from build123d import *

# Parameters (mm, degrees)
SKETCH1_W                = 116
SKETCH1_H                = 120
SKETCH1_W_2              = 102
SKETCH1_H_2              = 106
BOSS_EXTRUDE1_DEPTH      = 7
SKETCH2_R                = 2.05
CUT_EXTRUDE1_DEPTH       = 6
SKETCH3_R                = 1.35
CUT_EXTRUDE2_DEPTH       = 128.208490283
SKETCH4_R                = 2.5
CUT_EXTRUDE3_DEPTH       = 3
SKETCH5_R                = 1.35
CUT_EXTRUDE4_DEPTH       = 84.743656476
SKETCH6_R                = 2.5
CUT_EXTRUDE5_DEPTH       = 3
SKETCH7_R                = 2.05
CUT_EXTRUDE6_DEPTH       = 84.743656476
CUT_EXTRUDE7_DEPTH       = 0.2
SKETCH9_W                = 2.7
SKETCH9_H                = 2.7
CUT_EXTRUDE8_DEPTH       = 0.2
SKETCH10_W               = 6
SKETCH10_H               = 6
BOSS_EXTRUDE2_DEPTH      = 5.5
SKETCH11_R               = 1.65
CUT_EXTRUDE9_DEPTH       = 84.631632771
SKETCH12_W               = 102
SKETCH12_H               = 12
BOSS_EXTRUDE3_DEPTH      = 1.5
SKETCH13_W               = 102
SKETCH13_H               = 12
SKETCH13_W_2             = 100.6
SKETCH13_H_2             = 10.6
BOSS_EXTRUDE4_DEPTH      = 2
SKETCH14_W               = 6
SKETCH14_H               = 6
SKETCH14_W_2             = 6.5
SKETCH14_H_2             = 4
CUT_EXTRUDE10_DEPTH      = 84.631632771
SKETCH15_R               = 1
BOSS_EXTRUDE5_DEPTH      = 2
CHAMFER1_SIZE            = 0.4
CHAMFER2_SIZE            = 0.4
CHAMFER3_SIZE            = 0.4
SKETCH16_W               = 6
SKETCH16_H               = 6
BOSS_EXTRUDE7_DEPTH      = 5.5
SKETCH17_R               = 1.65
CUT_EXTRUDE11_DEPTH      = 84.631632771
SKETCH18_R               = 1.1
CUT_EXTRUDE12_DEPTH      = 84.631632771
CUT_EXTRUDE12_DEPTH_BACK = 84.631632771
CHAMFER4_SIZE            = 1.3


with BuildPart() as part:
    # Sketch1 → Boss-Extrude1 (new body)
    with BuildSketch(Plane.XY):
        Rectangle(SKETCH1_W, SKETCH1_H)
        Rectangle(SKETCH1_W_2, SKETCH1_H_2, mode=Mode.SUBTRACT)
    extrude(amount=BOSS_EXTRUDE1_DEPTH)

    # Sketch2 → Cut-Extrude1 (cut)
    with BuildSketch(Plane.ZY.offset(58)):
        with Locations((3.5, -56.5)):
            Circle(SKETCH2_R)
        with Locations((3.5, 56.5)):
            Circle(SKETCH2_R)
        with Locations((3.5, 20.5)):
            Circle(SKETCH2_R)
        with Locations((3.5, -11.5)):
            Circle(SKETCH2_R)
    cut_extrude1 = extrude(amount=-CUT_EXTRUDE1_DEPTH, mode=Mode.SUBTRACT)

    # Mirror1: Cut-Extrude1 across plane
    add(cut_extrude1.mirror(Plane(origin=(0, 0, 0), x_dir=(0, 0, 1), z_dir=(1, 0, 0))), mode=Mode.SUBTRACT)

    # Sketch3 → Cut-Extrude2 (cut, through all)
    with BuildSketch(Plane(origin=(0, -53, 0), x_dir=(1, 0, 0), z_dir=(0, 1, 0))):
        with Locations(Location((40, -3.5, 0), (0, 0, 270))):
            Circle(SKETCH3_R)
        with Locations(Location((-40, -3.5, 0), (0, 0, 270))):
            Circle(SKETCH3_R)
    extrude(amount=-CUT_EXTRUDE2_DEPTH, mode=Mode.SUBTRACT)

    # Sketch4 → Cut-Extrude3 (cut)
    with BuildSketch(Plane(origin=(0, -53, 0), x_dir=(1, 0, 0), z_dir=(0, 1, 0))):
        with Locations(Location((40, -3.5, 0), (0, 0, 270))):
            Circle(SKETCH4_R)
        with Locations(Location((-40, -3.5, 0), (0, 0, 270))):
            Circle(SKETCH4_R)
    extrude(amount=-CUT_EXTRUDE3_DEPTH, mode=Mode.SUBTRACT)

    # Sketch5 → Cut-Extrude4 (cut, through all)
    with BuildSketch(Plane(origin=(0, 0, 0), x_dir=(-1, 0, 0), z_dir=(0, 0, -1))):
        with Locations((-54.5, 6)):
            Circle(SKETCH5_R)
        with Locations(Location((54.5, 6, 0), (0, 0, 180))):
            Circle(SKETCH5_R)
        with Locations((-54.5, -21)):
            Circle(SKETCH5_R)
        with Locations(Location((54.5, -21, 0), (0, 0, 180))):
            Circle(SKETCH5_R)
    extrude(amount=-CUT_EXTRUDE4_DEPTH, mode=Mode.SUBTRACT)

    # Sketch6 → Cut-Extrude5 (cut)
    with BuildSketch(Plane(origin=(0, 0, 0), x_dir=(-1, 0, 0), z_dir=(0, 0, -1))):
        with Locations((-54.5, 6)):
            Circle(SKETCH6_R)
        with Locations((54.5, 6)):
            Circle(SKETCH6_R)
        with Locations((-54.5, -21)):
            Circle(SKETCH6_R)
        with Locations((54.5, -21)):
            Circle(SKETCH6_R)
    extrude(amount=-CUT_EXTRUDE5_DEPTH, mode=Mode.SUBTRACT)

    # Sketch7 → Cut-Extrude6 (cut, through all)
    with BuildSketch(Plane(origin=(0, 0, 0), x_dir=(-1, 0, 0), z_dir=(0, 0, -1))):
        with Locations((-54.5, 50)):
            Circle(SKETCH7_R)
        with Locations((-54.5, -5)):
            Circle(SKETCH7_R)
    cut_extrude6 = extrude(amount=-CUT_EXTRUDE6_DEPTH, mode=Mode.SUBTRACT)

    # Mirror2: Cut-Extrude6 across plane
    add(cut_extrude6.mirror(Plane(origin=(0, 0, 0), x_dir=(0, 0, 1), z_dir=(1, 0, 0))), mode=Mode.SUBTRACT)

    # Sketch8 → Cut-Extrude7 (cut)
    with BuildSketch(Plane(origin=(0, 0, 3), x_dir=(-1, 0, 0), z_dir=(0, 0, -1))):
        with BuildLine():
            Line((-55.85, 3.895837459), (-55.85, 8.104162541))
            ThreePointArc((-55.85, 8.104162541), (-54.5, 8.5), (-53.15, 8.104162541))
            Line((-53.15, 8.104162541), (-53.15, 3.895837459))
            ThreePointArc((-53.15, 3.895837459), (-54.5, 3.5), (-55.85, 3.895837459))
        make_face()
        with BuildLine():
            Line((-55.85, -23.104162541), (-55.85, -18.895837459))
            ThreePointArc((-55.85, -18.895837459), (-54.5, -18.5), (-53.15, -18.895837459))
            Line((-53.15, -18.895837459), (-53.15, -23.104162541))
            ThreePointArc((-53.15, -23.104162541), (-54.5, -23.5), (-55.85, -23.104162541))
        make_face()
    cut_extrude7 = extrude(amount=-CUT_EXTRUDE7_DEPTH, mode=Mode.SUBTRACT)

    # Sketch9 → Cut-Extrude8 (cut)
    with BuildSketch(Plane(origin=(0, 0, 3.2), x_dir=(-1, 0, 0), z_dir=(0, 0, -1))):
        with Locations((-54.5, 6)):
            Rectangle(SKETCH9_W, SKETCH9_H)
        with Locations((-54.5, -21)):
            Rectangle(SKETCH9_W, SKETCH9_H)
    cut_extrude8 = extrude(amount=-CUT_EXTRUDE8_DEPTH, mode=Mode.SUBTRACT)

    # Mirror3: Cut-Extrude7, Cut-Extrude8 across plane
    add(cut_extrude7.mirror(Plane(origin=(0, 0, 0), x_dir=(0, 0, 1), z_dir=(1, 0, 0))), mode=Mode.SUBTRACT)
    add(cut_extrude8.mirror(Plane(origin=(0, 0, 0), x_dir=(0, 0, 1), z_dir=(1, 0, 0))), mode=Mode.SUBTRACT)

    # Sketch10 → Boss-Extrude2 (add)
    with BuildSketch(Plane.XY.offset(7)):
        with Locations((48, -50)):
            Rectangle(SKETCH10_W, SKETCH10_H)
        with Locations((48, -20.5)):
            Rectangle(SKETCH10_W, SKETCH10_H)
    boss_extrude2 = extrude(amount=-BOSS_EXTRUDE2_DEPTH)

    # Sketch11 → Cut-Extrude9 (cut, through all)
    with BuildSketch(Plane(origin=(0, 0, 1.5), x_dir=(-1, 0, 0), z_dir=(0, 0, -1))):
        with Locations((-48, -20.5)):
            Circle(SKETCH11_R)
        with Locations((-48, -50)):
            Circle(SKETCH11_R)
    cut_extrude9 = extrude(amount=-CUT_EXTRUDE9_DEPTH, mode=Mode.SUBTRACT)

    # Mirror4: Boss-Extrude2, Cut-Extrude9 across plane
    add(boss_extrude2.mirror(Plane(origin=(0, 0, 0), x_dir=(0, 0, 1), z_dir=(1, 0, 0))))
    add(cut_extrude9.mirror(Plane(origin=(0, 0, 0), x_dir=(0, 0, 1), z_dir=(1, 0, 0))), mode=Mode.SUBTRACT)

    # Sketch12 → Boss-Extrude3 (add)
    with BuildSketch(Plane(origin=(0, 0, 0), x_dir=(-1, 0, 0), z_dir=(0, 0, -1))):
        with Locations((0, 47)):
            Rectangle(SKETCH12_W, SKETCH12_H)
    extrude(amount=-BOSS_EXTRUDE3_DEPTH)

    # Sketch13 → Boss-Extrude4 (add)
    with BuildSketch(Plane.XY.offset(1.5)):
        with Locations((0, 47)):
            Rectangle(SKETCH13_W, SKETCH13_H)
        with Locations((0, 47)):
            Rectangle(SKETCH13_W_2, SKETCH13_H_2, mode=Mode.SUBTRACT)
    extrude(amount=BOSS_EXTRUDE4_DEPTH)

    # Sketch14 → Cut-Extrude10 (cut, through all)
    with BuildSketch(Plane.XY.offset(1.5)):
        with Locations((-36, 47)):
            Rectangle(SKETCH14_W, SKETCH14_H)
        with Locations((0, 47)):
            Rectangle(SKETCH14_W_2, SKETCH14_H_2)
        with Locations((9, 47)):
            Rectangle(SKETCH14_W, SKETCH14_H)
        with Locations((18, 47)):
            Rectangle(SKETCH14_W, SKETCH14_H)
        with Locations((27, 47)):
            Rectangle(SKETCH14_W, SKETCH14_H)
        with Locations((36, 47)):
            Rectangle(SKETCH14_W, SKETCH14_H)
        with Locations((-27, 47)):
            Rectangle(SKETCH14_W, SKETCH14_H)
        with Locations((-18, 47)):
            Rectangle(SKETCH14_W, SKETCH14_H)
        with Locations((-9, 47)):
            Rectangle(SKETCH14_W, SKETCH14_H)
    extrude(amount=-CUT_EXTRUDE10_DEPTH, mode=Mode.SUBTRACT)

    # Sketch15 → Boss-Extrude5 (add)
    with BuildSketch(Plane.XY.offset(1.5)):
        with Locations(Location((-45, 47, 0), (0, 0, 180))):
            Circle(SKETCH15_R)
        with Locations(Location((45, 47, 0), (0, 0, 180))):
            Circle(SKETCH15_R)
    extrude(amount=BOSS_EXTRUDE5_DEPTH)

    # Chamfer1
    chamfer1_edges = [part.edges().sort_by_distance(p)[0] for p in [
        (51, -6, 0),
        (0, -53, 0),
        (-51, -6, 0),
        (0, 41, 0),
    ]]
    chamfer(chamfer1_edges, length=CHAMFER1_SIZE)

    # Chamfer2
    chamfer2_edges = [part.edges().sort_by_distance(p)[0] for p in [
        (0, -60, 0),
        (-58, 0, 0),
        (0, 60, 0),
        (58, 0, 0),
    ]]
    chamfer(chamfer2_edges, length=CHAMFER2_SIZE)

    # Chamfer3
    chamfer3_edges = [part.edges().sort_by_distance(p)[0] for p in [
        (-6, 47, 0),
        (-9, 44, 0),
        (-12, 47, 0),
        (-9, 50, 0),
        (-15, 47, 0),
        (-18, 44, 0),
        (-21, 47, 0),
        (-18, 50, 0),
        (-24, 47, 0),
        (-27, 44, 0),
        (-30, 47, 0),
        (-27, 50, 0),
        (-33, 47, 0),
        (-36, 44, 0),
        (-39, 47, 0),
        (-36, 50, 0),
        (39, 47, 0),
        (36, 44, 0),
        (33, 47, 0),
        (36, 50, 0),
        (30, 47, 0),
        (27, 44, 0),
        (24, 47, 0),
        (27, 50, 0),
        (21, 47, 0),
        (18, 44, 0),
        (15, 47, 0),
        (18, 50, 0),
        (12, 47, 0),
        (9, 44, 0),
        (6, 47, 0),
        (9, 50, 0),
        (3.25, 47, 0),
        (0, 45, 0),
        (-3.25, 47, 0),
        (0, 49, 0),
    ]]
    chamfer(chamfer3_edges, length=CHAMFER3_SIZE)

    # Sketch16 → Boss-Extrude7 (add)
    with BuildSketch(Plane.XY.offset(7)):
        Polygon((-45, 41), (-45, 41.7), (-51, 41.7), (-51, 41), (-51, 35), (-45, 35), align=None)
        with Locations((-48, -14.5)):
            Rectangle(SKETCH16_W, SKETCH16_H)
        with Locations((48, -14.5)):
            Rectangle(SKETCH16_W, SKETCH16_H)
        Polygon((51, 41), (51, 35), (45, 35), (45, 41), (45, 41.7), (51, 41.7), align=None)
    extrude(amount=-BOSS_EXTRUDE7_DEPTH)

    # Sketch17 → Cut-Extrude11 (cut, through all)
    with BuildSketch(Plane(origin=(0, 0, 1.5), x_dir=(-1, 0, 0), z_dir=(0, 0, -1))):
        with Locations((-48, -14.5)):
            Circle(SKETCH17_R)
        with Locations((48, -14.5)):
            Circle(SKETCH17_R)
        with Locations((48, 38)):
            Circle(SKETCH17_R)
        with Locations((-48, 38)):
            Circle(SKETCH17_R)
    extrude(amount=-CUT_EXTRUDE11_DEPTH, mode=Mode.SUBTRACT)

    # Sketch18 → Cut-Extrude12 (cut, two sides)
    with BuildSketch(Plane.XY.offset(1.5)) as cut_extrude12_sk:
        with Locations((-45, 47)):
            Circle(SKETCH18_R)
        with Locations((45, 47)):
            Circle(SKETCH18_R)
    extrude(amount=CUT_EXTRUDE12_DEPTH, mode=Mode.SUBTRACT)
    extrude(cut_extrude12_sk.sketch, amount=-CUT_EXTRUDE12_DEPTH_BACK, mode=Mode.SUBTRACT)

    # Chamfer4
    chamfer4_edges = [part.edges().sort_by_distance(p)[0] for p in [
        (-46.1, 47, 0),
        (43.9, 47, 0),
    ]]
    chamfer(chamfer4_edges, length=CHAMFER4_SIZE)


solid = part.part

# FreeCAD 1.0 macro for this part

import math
import FreeCAD as App
import Part
import Sketcher

V = App.Vector
Q = App.Units.Quantity


def edges_at(feature, points):
    """Names of the edges that pass closest to the given points."""
    edges = feature.Shape.Edges
    near = lambda p: min(range(len(edges)), key=lambda i: edges[i].distToShape(Part.Vertex(*p))[0])
    return sorted({f"Edge{near(p) + 1}" for p in points})


def add_polygon(sketch, points):
    """Adds a closed chain of lines whose ends are joined by coincident constraints."""
    first, n = sketch.GeometryCount, len(points)
    for a, b in zip(points, points[1:] + points[:1]):
        sketch.addGeometry(Part.LineSegment(App.Vector(*a, 0), App.Vector(*b, 0)), False)
    for i in range(n):
        sketch.addConstraint(Sketcher.Constraint("Coincident", first + i, 2, first + (i + 1) % n, 1))

doc = App.newDocument("Part")
body = doc.addObject("PartDesign::Body", "Body")

# Sketch on XY plane
sketch1 = doc.addObject("Sketcher::SketchObject", "Sketch")
body.addObject(sketch1)
sketch1.AttachmentSupport = (doc.XY_Plane, [""])
sketch1.MapMode = "FlatFace"
add_polygon(sketch1, [(-58, 60), (-58, -60), (58, -60), (58, 60)])  # lines 0-3
add_polygon(sketch1, [(51, -53), (-51, -53), (-51, 53), (51, 53)])  # lines 4-7
sketch1.addConstraint([
    Sketcher.Constraint("Vertical", 0),
    Sketcher.Constraint("Horizontal", 1),
    Sketcher.Constraint("Vertical", 2),
    Sketcher.Constraint("Horizontal", 3),
    Sketcher.Constraint("Horizontal", 4),
    Sketcher.Constraint("Vertical", 5),
    Sketcher.Constraint("Horizontal", 6),
    Sketcher.Constraint("Vertical", 7),
    Sketcher.Constraint("Symmetric", 0, 2, 2, 2, -1, 1),
    Sketcher.Constraint("Symmetric", 4, 2, 6, 2, -1, 1),
    Sketcher.Constraint("DistanceX", 1, 1, 1, 2, Q("116 mm")),
    Sketcher.Constraint("DistanceX", 4, 2, 4, 1, Q("102 mm")),
    Sketcher.Constraint("DistanceY", 0, 2, 0, 1, Q("120 mm")),
    Sketcher.Constraint("DistanceY", 5, 1, 5, 2, Q("106 mm")),
])
pad1 = doc.addObject("PartDesign::Pad", "Pad")
body.addObject(pad1)
pad1.Profile = sketch1
pad1.Length = 7

# Sketch on YZ plane
sketch2 = doc.addObject("Sketcher::SketchObject", "Sketch001")
body.addObject(sketch2)
sketch2.AttachmentSupport = (doc.YZ_Plane, [""])
sketch2.MapMode = "FlatFace"
sketch2.AttachmentOffset = App.Placement(V(0, 0, -58), App.Rotation())
sketch2.addGeometry([
    Part.Circle(V(-56.5, 3.5, 0), V(0, 0, 1), 2.05),
    Part.Circle(V(56.5, 3.5, 0), V(0, 0, 1), 2.05),
    Part.Circle(V(20.5, 3.5, 0), V(0, 0, 1), 2.05),
    Part.Circle(V(-11.5, 3.5, 0), V(0, 0, 1), 2.05),
], False)
sketch2.addConstraint([
    Sketcher.Constraint("Equal", 0, 1),
    Sketcher.Constraint("Equal", 1, 2),
    Sketcher.Constraint("Equal", 2, 3),
    Sketcher.Constraint("Symmetric", 0, 3, 1, 3, -2),
    Sketcher.Constraint("Horizontal", 1, 3, 2, 3),
    Sketcher.Constraint("Horizontal", 2, 3, 3, 3),
    Sketcher.Constraint("Diameter", 0, Q("4.1 mm")),
    Sketcher.Constraint("DistanceX", 0, 3, 1, 3, Q("113 mm")),
    Sketcher.Constraint("DistanceX", 2, 3, 1, 3, Q("36 mm")),
    Sketcher.Constraint("DistanceX", 3, 3, 2, 3, Q("32 mm")),
    Sketcher.Constraint("DistanceY", -1, 1, 0, 3, Q("3.5 mm")),
])
pocket1 = doc.addObject("PartDesign::Pocket", "Pocket")
body.addObject(pocket1)
pocket1.Profile = sketch2
pocket1.Length = 6
pocket1.Reversed = True
doc.recompute()

mirrored = doc.addObject("PartDesign::Mirrored", "Mirrored")
body.addObject(mirrored)
mirrored.Originals = [pocket1]
mirrored.MirrorPlane = (doc.YZ_Plane, [""])
body.Tip = mirrored

# Sketch on XZ plane
sketch3 = doc.addObject("Sketcher::SketchObject", "Sketch002")
body.addObject(sketch3)
sketch3.AttachmentSupport = (doc.XZ_Plane, [""])
sketch3.MapMode = "FlatFace"
sketch3.AttachmentOffset = App.Placement(V(0, 0, 53), App.Rotation())
sketch3.addGeometry([
    Part.Circle(V(40, 3.5, 0), V(0, 0, 1), 1.35),
    Part.Circle(V(-40, 3.5, 0), V(0, 0, 1), 1.35),
], False)
sketch3.addConstraint([
    Sketcher.Constraint("Equal", 0, 1),
    Sketcher.Constraint("Symmetric", 0, 3, 1, 3, -2),
    Sketcher.Constraint("Diameter", 0, Q("2.7 mm")),
    Sketcher.Constraint("DistanceX", -1, 1, 0, 3, Q("40 mm")),
    Sketcher.Constraint("DistanceY", -1, 1, 0, 3, Q("3.5 mm")),
])
pocket2 = doc.addObject("PartDesign::Pocket", "Pocket001")
body.addObject(pocket2)
pocket2.Profile = sketch3
pocket2.Type = "ThroughAll"
pocket2.Reversed = True

# Sketch on XZ plane
sketch4 = doc.addObject("Sketcher::SketchObject", "Sketch003")
body.addObject(sketch4)
sketch4.AttachmentSupport = (doc.XZ_Plane, [""])
sketch4.MapMode = "FlatFace"
sketch4.AttachmentOffset = App.Placement(V(0, 0, 53), App.Rotation())
sketch4.addGeometry([
    Part.Circle(V(40, 3.5, 0), V(0, 0, 1), 2.5),
    Part.Circle(V(-40, 3.5, 0), V(0, 0, 1), 2.5),
], False)
sketch4.addConstraint([
    Sketcher.Constraint("Equal", 0, 1),
    Sketcher.Constraint("Symmetric", 0, 3, 1, 3, -2),
    Sketcher.Constraint("Diameter", 0, Q("5 mm")),
    Sketcher.Constraint("DistanceX", -1, 1, 0, 3, Q("40 mm")),
    Sketcher.Constraint("DistanceY", -1, 1, 0, 3, Q("3.5 mm")),
])
pocket3 = doc.addObject("PartDesign::Pocket", "Pocket002")
body.addObject(pocket3)
pocket3.Profile = sketch4
pocket3.Length = 3
pocket3.Reversed = True

# Sketch on XY plane
sketch5 = doc.addObject("Sketcher::SketchObject", "Sketch004")
body.addObject(sketch5)
sketch5.AttachmentSupport = (doc.XY_Plane, [""])
sketch5.MapMode = "FlatFace"
sketch5.addGeometry([
    Part.Circle(V(54.5, 6, 0), V(0, 0, 1), 1.35),
    Part.Circle(V(-54.5, 6, 0), V(0, 0, 1), 1.35),
    Part.Circle(V(54.5, -21, 0), V(0, 0, 1), 1.35),
    Part.Circle(V(-54.5, -21, 0), V(0, 0, 1), 1.35),
], False)
sketch5.addConstraint([
    Sketcher.Constraint("Equal", 0, 1),
    Sketcher.Constraint("Equal", 1, 2),
    Sketcher.Constraint("Equal", 2, 3),
    Sketcher.Constraint("Symmetric", 0, 3, 1, 3, -2),
    Sketcher.Constraint("Symmetric", 2, 3, 3, 3, -2),
    Sketcher.Constraint("Vertical", 0, 3, 2, 3),
    Sketcher.Constraint("Diameter", 0, Q("2.7 mm")),
    Sketcher.Constraint("DistanceY", -1, 1, 0, 3, Q("6 mm")),
    Sketcher.Constraint("DistanceY", 2, 3, -1, 1, Q("21 mm")),
    Sketcher.Constraint("DistanceX", 1, 3, 0, 3, Q("109 mm")),
])
pocket4 = doc.addObject("PartDesign::Pocket", "Pocket003")
body.addObject(pocket4)
pocket4.Profile = sketch5
pocket4.Type = "ThroughAll"
pocket4.Reversed = True

# Sketch on XY plane
sketch6 = doc.addObject("Sketcher::SketchObject", "Sketch005")
body.addObject(sketch6)
sketch6.AttachmentSupport = (doc.XY_Plane, [""])
sketch6.MapMode = "FlatFace"
sketch6.addGeometry([
    Part.Circle(V(54.5, 6, 0), V(0, 0, 1), 2.5),
    Part.Circle(V(-54.5, 6, 0), V(0, 0, 1), 2.5),
    Part.Circle(V(54.5, -21, 0), V(0, 0, 1), 2.5),
    Part.Circle(V(-54.5, -21, 0), V(0, 0, 1), 2.5),
], False)
sketch6.addConstraint([
    Sketcher.Constraint("Equal", 0, 1),
    Sketcher.Constraint("Equal", 1, 2),
    Sketcher.Constraint("Equal", 2, 3),
    Sketcher.Constraint("Symmetric", 0, 3, 1, 3, -2),
    Sketcher.Constraint("Symmetric", 2, 3, 3, 3, -2),
    Sketcher.Constraint("Vertical", 0, 3, 2, 3),
    Sketcher.Constraint("Diameter", 0, Q("5 mm")),
    Sketcher.Constraint("DistanceY", -1, 1, 0, 3, Q("6 mm")),
    Sketcher.Constraint("DistanceY", 2, 3, -1, 1, Q("21 mm")),
    Sketcher.Constraint("DistanceX", 1, 3, 0, 3, Q("109 mm")),
])
pocket5 = doc.addObject("PartDesign::Pocket", "Pocket004")
body.addObject(pocket5)
pocket5.Profile = sketch6
pocket5.Length = 3
pocket5.Reversed = True

# Sketch on XY plane
sketch7 = doc.addObject("Sketcher::SketchObject", "Sketch006")
body.addObject(sketch7)
sketch7.AttachmentSupport = (doc.XY_Plane, [""])
sketch7.MapMode = "FlatFace"
sketch7.addGeometry([
    Part.Circle(V(54.5, 50, 0), V(0, 0, 1), 2.05),
    Part.Circle(V(54.5, -5, 0), V(0, 0, 1), 2.05),
], False)
sketch7.addConstraint([
    Sketcher.Constraint("Equal", 0, 1),
    Sketcher.Constraint("Vertical", 0, 3, 1, 3),
    Sketcher.Constraint("Diameter", 0, Q("4.1 mm")),
    Sketcher.Constraint("DistanceY", -1, 1, 0, 3, Q("50 mm")),
    Sketcher.Constraint("DistanceY", 1, 3, -1, 1, Q("5 mm")),
    Sketcher.Constraint("DistanceX", -1, 1, 0, 3, Q("54.5 mm")),
])
pocket6 = doc.addObject("PartDesign::Pocket", "Pocket005")
body.addObject(pocket6)
pocket6.Profile = sketch7
pocket6.Type = "ThroughAll"
pocket6.Reversed = True
doc.recompute()

mirrored2 = doc.addObject("PartDesign::Mirrored", "Mirrored001")
body.addObject(mirrored2)
mirrored2.Originals = [pocket6]
mirrored2.MirrorPlane = (doc.YZ_Plane, [""])
body.Tip = mirrored2

# Sketch on XY plane
sketch8 = doc.addObject("Sketcher::SketchObject", "Sketch007")
body.addObject(sketch8)
sketch8.AttachmentSupport = (doc.XY_Plane, [""])
sketch8.MapMode = "FlatFace"
sketch8.AttachmentOffset = App.Placement(V(0, 0, 3), App.Rotation())
sketch8.addGeometry([
    Part.LineSegment(V(55.85, 8.104163, 0), V(55.85, 3.895837, 0)),  # 0
    Part.ArcOfCircle(Part.Circle(V(54.5, 6, 0), V(0, 0, 1), 2.5), math.radians(-122.683639), math.radians(-57.316361)),  # 1
    Part.LineSegment(V(53.15, 3.895837, 0), V(53.15, 8.104163, 0)),  # 2
    Part.ArcOfCircle(Part.Circle(V(54.5, 6, 0), V(0, 0, 1), 2.5), math.radians(57.316361), math.radians(122.683639)),  # 3
    Part.LineSegment(V(55.85, -18.895837, 0), V(55.85, -23.104163, 0)),  # 4
    Part.ArcOfCircle(Part.Circle(V(54.5, -21, 0), V(0, 0, 1), 2.5), math.radians(-122.683639), math.radians(-57.316361)),  # 5
    Part.LineSegment(V(53.15, -23.104163, 0), V(53.15, -18.895837, 0)),  # 6
    Part.ArcOfCircle(Part.Circle(V(54.5, -21, 0), V(0, 0, 1), 2.5), math.radians(57.316361), math.radians(122.683639)),  # 7
], False)
sketch8.addConstraint([
    Sketcher.Constraint("Coincident", 0, 2, 1, 2),
    Sketcher.Constraint("Coincident", 1, 1, 2, 1),
    Sketcher.Constraint("Coincident", 2, 2, 3, 2),
    Sketcher.Constraint("Coincident", 3, 1, 0, 1),
    Sketcher.Constraint("Coincident", 4, 2, 5, 2),
    Sketcher.Constraint("Coincident", 5, 1, 6, 1),
    Sketcher.Constraint("Coincident", 6, 2, 7, 2),
    Sketcher.Constraint("Coincident", 7, 1, 4, 1),
    Sketcher.Constraint("Vertical", 0),
    Sketcher.Constraint("Vertical", 2),
    Sketcher.Constraint("Vertical", 4),
    Sketcher.Constraint("Vertical", 6),
    Sketcher.Constraint("Coincident", 3, 3, 1, 3),
    Sketcher.Constraint("Coincident", 7, 3, 5, 3),
    Sketcher.Constraint("Equal", 1, 3),
    Sketcher.Constraint("Equal", 3, 5),
    Sketcher.Constraint("Equal", 5, 7),
    Sketcher.Constraint("Horizontal", 0, 2, 1, 1),
    Sketcher.Constraint("Horizontal", 4, 2, 5, 1),
    Sketcher.Constraint("Vertical", 3, 3, 5, 3),
    Sketcher.Constraint("Vertical", 3, 1, 4, 2),
    Sketcher.Constraint("Radius", 1, Q("2.5 mm")),
    Sketcher.Constraint("DistanceY", -1, 1, 1, 3, Q("6 mm")),
    Sketcher.Constraint("DistanceY", 5, 3, -1, 1, Q("21 mm")),
    Sketcher.Constraint("DistanceX", -1, 1, 1, 3, Q("54.5 mm")),
    Sketcher.Constraint("DistanceX", 1, 1, 0, 2, Q("2.7 mm")),
])
pocket7 = doc.addObject("PartDesign::Pocket", "Pocket006")
body.addObject(pocket7)
pocket7.Profile = sketch8
pocket7.Length = 0.2
pocket7.Reversed = True

# Sketch on XY plane
sketch9 = doc.addObject("Sketcher::SketchObject", "Sketch008")
body.addObject(sketch9)
sketch9.AttachmentSupport = (doc.XY_Plane, [""])
sketch9.MapMode = "FlatFace"
sketch9.AttachmentOffset = App.Placement(V(0, 0, 3.2), App.Rotation())
add_polygon(sketch9, [(55.85, 7.35), (55.85, 4.65), (53.15, 4.65), (53.15, 7.35)])  # lines 0-3
add_polygon(sketch9, [(55.85, -19.65), (55.85, -22.35), (53.15, -22.35), (53.15, -19.65)])  # lines 4-7
sketch9.addConstraint([
    Sketcher.Constraint("Vertical", 0),
    Sketcher.Constraint("Horizontal", 1),
    Sketcher.Constraint("Vertical", 2),
    Sketcher.Constraint("Horizontal", 3),
    Sketcher.Constraint("Vertical", 4),
    Sketcher.Constraint("Horizontal", 5),
    Sketcher.Constraint("Vertical", 6),
    Sketcher.Constraint("Horizontal", 7),
    Sketcher.Constraint("Vertical", 3, 2, 4, 2),
    Sketcher.Constraint("Vertical", 2, 2, 5, 2),
    Sketcher.Constraint("Equal", 7, 0),
    Sketcher.Constraint("Equal", 2, 4),
    Sketcher.Constraint("DistanceX", 1, 2, 1, 1, Q("2.7 mm")),
    Sketcher.Constraint("DistanceY", 4, 2, 0, 2, Q("27 mm")),
    Sketcher.Constraint("DistanceX", -1, 1, 0, 2, Q("55.85 mm")),
    Sketcher.Constraint("DistanceY", -1, 1, 0, 2, Q("4.65 mm")),
])
pocket8 = doc.addObject("PartDesign::Pocket", "Pocket007")
body.addObject(pocket8)
pocket8.Profile = sketch9
pocket8.Length = 0.2
pocket8.Reversed = True
doc.recompute()

mirrored3 = doc.addObject("PartDesign::Mirrored", "Mirrored002")
body.addObject(mirrored3)
mirrored3.Originals = [pocket7, pocket8]
mirrored3.MirrorPlane = (doc.YZ_Plane, [""])
body.Tip = mirrored3

# Sketch on XY plane
sketch10 = doc.addObject("Sketcher::SketchObject", "Sketch009")
body.addObject(sketch10)
sketch10.AttachmentSupport = (doc.XY_Plane, [""])
sketch10.MapMode = "FlatFace"
sketch10.AttachmentOffset = App.Placement(V(0, 0, 7), App.Rotation())
add_polygon(sketch10, [(45, -47), (45, -53), (51, -53), (51, -47)])  # lines 0-3
add_polygon(sketch10, [(45, -17.5), (45, -23.5), (51, -23.5), (51, -17.5)])  # lines 4-7
sketch10.addConstraint([
    Sketcher.Constraint("Vertical", 0),
    Sketcher.Constraint("Horizontal", 1),
    Sketcher.Constraint("Vertical", 2),
    Sketcher.Constraint("Horizontal", 3),
    Sketcher.Constraint("Vertical", 4),
    Sketcher.Constraint("Horizontal", 5),
    Sketcher.Constraint("Vertical", 6),
    Sketcher.Constraint("Horizontal", 7),
    Sketcher.Constraint("Vertical", 3, 2, 4, 2),
    Sketcher.Constraint("Vertical", 2, 2, 5, 2),
    Sketcher.Constraint("Equal", 7, 0),
    Sketcher.Constraint("Equal", 2, 4),
    Sketcher.Constraint("DistanceX", 1, 1, 1, 2, Q("6 mm")),
    Sketcher.Constraint("DistanceX", -1, 1, 0, 2, Q("45 mm")),
    Sketcher.Constraint("DistanceY", 0, 2, -1, 1, Q("53 mm")),
    Sketcher.Constraint("DistanceY", 4, 2, -1, 1, Q("23.5 mm")),
])
pad2 = doc.addObject("PartDesign::Pad", "Pad001")
body.addObject(pad2)
pad2.Profile = sketch10
pad2.Length = 5.5
pad2.Reversed = True

# Sketch on XY plane
sketch11 = doc.addObject("Sketcher::SketchObject", "Sketch010")
body.addObject(sketch11)
sketch11.AttachmentSupport = (doc.XY_Plane, [""])
sketch11.MapMode = "FlatFace"
sketch11.AttachmentOffset = App.Placement(V(0, 0, 1.5), App.Rotation())
sketch11.addGeometry([
    Part.Circle(V(48, -20.5, 0), V(0, 0, 1), 1.65),
    Part.Circle(V(48, -50, 0), V(0, 0, 1), 1.65),
], False)
sketch11.addConstraint([
    Sketcher.Constraint("Equal", 0, 1),
    Sketcher.Constraint("Vertical", 0, 3, 1, 3),
    Sketcher.Constraint("Diameter", 0, Q("3.3 mm")),
    Sketcher.Constraint("DistanceX", -1, 1, 0, 3, Q("48 mm")),
    Sketcher.Constraint("DistanceY", 1, 3, -1, 1, Q("50 mm")),
    Sketcher.Constraint("DistanceY", 0, 3, -1, 1, Q("20.5 mm")),
])
pocket9 = doc.addObject("PartDesign::Pocket", "Pocket008")
body.addObject(pocket9)
pocket9.Profile = sketch11
pocket9.Type = "ThroughAll"
pocket9.Reversed = True
doc.recompute()

mirrored4 = doc.addObject("PartDesign::Mirrored", "Mirrored003")
body.addObject(mirrored4)
mirrored4.Originals = [pad2, pocket9]
mirrored4.MirrorPlane = (doc.YZ_Plane, [""])
body.Tip = mirrored4

# Sketch on XY plane
sketch12 = doc.addObject("Sketcher::SketchObject", "Sketch011")
body.addObject(sketch12)
sketch12.AttachmentSupport = (doc.XY_Plane, [""])
sketch12.MapMode = "FlatFace"
add_polygon(sketch12, [(51, 53), (51, 41), (-51, 41), (-51, 53)])  # lines 0-3
sketch12.addConstraint([
    Sketcher.Constraint("Vertical", 0),
    Sketcher.Constraint("Horizontal", 1),
    Sketcher.Constraint("Vertical", 2),
    Sketcher.Constraint("Horizontal", 3),
    Sketcher.Constraint("DistanceX", 1, 2, 1, 1, Q("102 mm")),
    Sketcher.Constraint("DistanceY", 0, 2, 0, 1, Q("12 mm")),
    Sketcher.Constraint("DistanceX", -1, 1, 0, 2, Q("51 mm")),
    Sketcher.Constraint("DistanceY", -1, 1, 0, 2, Q("41 mm")),
])
pad3 = doc.addObject("PartDesign::Pad", "Pad002")
body.addObject(pad3)
pad3.Profile = sketch12
pad3.Length = 1.5

# Sketch on XY plane
sketch13 = doc.addObject("Sketcher::SketchObject", "Sketch012")
body.addObject(sketch13)
sketch13.AttachmentSupport = (doc.XY_Plane, [""])
sketch13.MapMode = "FlatFace"
sketch13.AttachmentOffset = App.Placement(V(0, 0, 1.5), App.Rotation())
add_polygon(sketch13, [(-51, 53), (-51, 41), (51, 41), (51, 53)])  # lines 0-3
add_polygon(sketch13, [(50.3, 41.7), (-50.3, 41.7), (-50.3, 52.3), (50.3, 52.3)])  # lines 4-7
sketch13.addConstraint([
    Sketcher.Constraint("Vertical", 0),
    Sketcher.Constraint("Horizontal", 1),
    Sketcher.Constraint("Vertical", 2),
    Sketcher.Constraint("Horizontal", 3),
    Sketcher.Constraint("Horizontal", 4),
    Sketcher.Constraint("Vertical", 5),
    Sketcher.Constraint("Horizontal", 6),
    Sketcher.Constraint("Vertical", 7),
    Sketcher.Constraint("DistanceX", 1, 1, 1, 2, Q("102 mm")),
    Sketcher.Constraint("DistanceY", 0, 2, 0, 1, Q("12 mm")),
    Sketcher.Constraint("DistanceX", 4, 2, 4, 1, Q("100.6 mm")),
    Sketcher.Constraint("DistanceY", 5, 1, 5, 2, Q("10.6 mm")),
    Sketcher.Constraint("DistanceX", 0, 2, -1, 1, Q("51 mm")),
    Sketcher.Constraint("DistanceY", -1, 1, 0, 2, Q("41 mm")),
    Sketcher.Constraint("DistanceX", 4, 2, -1, 1, Q("50.3 mm")),
    Sketcher.Constraint("DistanceY", -1, 1, 4, 2, Q("41.7 mm")),
])
pad4 = doc.addObject("PartDesign::Pad", "Pad003")
body.addObject(pad4)
pad4.Profile = sketch13
pad4.Length = 2

# Sketch on XY plane
sketch14 = doc.addObject("Sketcher::SketchObject", "Sketch013")
body.addObject(sketch14)
sketch14.AttachmentSupport = (doc.XY_Plane, [""])
sketch14.MapMode = "FlatFace"
sketch14.AttachmentOffset = App.Placement(V(0, 0, 1.5), App.Rotation())
add_polygon(sketch14, [(-39, 50), (-39, 44), (-33, 44), (-33, 50)])  # lines 0-3
add_polygon(sketch14, [(-3.25, 49), (-3.25, 45), (3.25, 45), (3.25, 49)])  # lines 4-7
add_polygon(sketch14, [(6, 50), (6, 44), (12, 44), (12, 50)])  # lines 8-11
add_polygon(sketch14, [(15, 50), (15, 44), (21, 44), (21, 50)])  # lines 12-15
add_polygon(sketch14, [(24, 50), (24, 44), (30, 44), (30, 50)])  # lines 16-19
add_polygon(sketch14, [(33, 50), (33, 44), (39, 44), (39, 50)])  # lines 20-23
add_polygon(sketch14, [(-30, 50), (-30, 44), (-24, 44), (-24, 50)])  # lines 24-27
add_polygon(sketch14, [(-21, 50), (-21, 44), (-15, 44), (-15, 50)])  # lines 28-31
add_polygon(sketch14, [(-12, 50), (-12, 44), (-6, 44), (-6, 50)])  # lines 32-35
sketch14.addConstraint([
    Sketcher.Constraint("Vertical", 0),
    Sketcher.Constraint("Horizontal", 1),
    Sketcher.Constraint("Vertical", 2),
    Sketcher.Constraint("Horizontal", 3),
    Sketcher.Constraint("Vertical", 4),
    Sketcher.Constraint("Horizontal", 5),
    Sketcher.Constraint("Vertical", 6),
    Sketcher.Constraint("Horizontal", 7),
    Sketcher.Constraint("Vertical", 8),
    Sketcher.Constraint("Horizontal", 9),
    Sketcher.Constraint("Vertical", 10),
    Sketcher.Constraint("Horizontal", 11),
    Sketcher.Constraint("Vertical", 12),
    Sketcher.Constraint("Horizontal", 13),
    Sketcher.Constraint("Vertical", 14),
    Sketcher.Constraint("Horizontal", 15),
    Sketcher.Constraint("Vertical", 16),
    Sketcher.Constraint("Horizontal", 17),
    Sketcher.Constraint("Vertical", 18),
    Sketcher.Constraint("Horizontal", 19),
    Sketcher.Constraint("Vertical", 20),
    Sketcher.Constraint("Horizontal", 21),
    Sketcher.Constraint("Vertical", 22),
    Sketcher.Constraint("Horizontal", 23),
    Sketcher.Constraint("Vertical", 24),
    Sketcher.Constraint("Horizontal", 25),
    Sketcher.Constraint("Vertical", 26),
    Sketcher.Constraint("Horizontal", 27),
    Sketcher.Constraint("Vertical", 28),
    Sketcher.Constraint("Horizontal", 29),
    Sketcher.Constraint("Vertical", 30),
    Sketcher.Constraint("Horizontal", 31),
    Sketcher.Constraint("Vertical", 32),
    Sketcher.Constraint("Horizontal", 33),
    Sketcher.Constraint("Vertical", 34),
    Sketcher.Constraint("Horizontal", 35),
    Sketcher.Constraint("Symmetric", 1, 2, 20, 2, -2),
    Sketcher.Constraint("Symmetric", 3, 2, 22, 2, -2),
    Sketcher.Constraint("Symmetric", 17, 2, 24, 2, -2),
    Sketcher.Constraint("Symmetric", 19, 2, 26, 2, -2),
    Sketcher.Constraint("Symmetric", 13, 2, 28, 2, -2),
    Sketcher.Constraint("Symmetric", 15, 2, 30, 2, -2),
    Sketcher.Constraint("Symmetric", 9, 2, 32, 2, -2),
    Sketcher.Constraint("Symmetric", 11, 2, 34, 2, -2),
    Sketcher.Constraint("Horizontal", 1, 2, 8, 2),
    Sketcher.Constraint("Horizontal", 3, 2, 10, 2),
    Sketcher.Constraint("Horizontal", 9, 2, 12, 2),
    Sketcher.Constraint("Horizontal", 11, 2, 14, 2),
    Sketcher.Constraint("Horizontal", 13, 2, 16, 2),
    Sketcher.Constraint("Horizontal", 15, 2, 18, 2),
    Sketcher.Constraint("Equal", 3, 9),
    Sketcher.Constraint("Equal", 11, 13),
    Sketcher.Constraint("Equal", 15, 17),
    Sketcher.Constraint("Equal", 35, 0),
    Sketcher.Constraint("DistanceX", 1, 1, 1, 2, Q("6 mm")),
    Sketcher.Constraint("DistanceY", 4, 2, 4, 1, Q("4 mm")),
    Sketcher.Constraint("DistanceX", 5, 1, 5, 2, Q("6.5 mm")),
    Sketcher.Constraint("DistanceX", 0, 2, -1, 1, Q("39 mm")),
    Sketcher.Constraint("DistanceY", -1, 1, 0, 2, Q("44 mm")),
    Sketcher.Constraint("DistanceY", -1, 1, 4, 2, Q("45 mm")),
    Sketcher.Constraint("DistanceX", -1, 1, 8, 2, Q("6 mm")),
    Sketcher.Constraint("DistanceX", -1, 1, 12, 2, Q("15 mm")),
    Sketcher.Constraint("DistanceX", -1, 1, 16, 2, Q("24 mm")),
    Sketcher.Constraint("DistanceX", 4, 2, -1, 1, Q("3.25 mm")),
])
pocket10 = doc.addObject("PartDesign::Pocket", "Pocket009")
body.addObject(pocket10)
pocket10.Profile = sketch14
pocket10.Type = "ThroughAll"

# Sketch on XY plane
sketch15 = doc.addObject("Sketcher::SketchObject", "Sketch014")
body.addObject(sketch15)
sketch15.AttachmentSupport = (doc.XY_Plane, [""])
sketch15.MapMode = "FlatFace"
sketch15.AttachmentOffset = App.Placement(V(0, 0, 1.5), App.Rotation())
sketch15.addGeometry([
    Part.Circle(V(-45, 47, 0), V(0, 0, 1), 1),
    Part.Circle(V(45, 47, 0), V(0, 0, 1), 1),
], False)
sketch15.addConstraint([
    Sketcher.Constraint("Equal", 0, 1),
    Sketcher.Constraint("Symmetric", 0, 3, 1, 3, -2),
    Sketcher.Constraint("Diameter", 0, Q("2 mm")),
    Sketcher.Constraint("DistanceX", 0, 3, -1, 1, Q("45 mm")),
    Sketcher.Constraint("DistanceY", -1, 1, 0, 3, Q("47 mm")),
])
pad5 = doc.addObject("PartDesign::Pad", "Pad004")
body.addObject(pad5)
pad5.Profile = sketch15
pad5.Length = 2
doc.recompute()

chamfer = doc.addObject("PartDesign::Chamfer", "Chamfer")
body.addObject(chamfer)
chamfer.Base = (pad5, edges_at(pad5, [
    (51, -6, 0),
    (0, -53, 0),
    (-51, -6, 0),
    (0, 41, 0),
]))
chamfer.Size = 0.4
doc.recompute()

chamfer2 = doc.addObject("PartDesign::Chamfer", "Chamfer001")
body.addObject(chamfer2)
chamfer2.Base = (chamfer, edges_at(chamfer, [
    (0, -60, 0),
    (-58, 0, 0),
    (0, 60, 0),
    (58, 0, 0),
]))
chamfer2.Size = 0.4
doc.recompute()

chamfer3 = doc.addObject("PartDesign::Chamfer", "Chamfer002")
body.addObject(chamfer3)
chamfer3.Base = (chamfer2, edges_at(chamfer2, [
    (-6, 47, 0),
    (-9, 44, 0),
    (-12, 47, 0),
    (-9, 50, 0),
    (-15, 47, 0),
    (-18, 44, 0),
    (-21, 47, 0),
    (-18, 50, 0),
    (-24, 47, 0),
    (-27, 44, 0),
    (-30, 47, 0),
    (-27, 50, 0),
    (-33, 47, 0),
    (-36, 44, 0),
    (-39, 47, 0),
    (-36, 50, 0),
    (39, 47, 0),
    (36, 44, 0),
    (33, 47, 0),
    (36, 50, 0),
    (30, 47, 0),
    (27, 44, 0),
    (24, 47, 0),
    (27, 50, 0),
    (21, 47, 0),
    (18, 44, 0),
    (15, 47, 0),
    (18, 50, 0),
    (12, 47, 0),
    (9, 44, 0),
    (6, 47, 0),
    (9, 50, 0),
    (3.25, 47, 0),
    (0, 45, 0),
    (-3.25, 47, 0),
    (0, 49, 0),
]))
chamfer3.Size = 0.4

# Sketch on XY plane
sketch16 = doc.addObject("Sketcher::SketchObject", "Sketch015")
body.addObject(sketch16)
sketch16.AttachmentSupport = (doc.XY_Plane, [""])
sketch16.MapMode = "FlatFace"
sketch16.AttachmentOffset = App.Placement(V(0, 0, 7), App.Rotation())
add_polygon(sketch16, [(-45, 41.7), (-51, 41.7), (-51, 35), (-45, 35)])  # lines 0-3
add_polygon(sketch16, [(-51, -11.5), (-51, -17.5), (-45, -17.5), (-45, -11.5)])  # lines 4-7
add_polygon(sketch16, [(45, -11.5), (45, -17.5), (51, -17.5), (51, -11.5)])  # lines 8-11
add_polygon(sketch16, [(51, 35), (51, 41.7), (45, 41.7), (45, 35)])  # lines 12-15
sketch16.addConstraint([
    Sketcher.Constraint("Horizontal", 0),
    Sketcher.Constraint("Vertical", 1),
    Sketcher.Constraint("Horizontal", 2),
    Sketcher.Constraint("Vertical", 3),
    Sketcher.Constraint("Vertical", 4),
    Sketcher.Constraint("Horizontal", 5),
    Sketcher.Constraint("Vertical", 6),
    Sketcher.Constraint("Horizontal", 7),
    Sketcher.Constraint("Vertical", 8),
    Sketcher.Constraint("Horizontal", 9),
    Sketcher.Constraint("Vertical", 10),
    Sketcher.Constraint("Horizontal", 11),
    Sketcher.Constraint("Vertical", 12),
    Sketcher.Constraint("Horizontal", 13),
    Sketcher.Constraint("Vertical", 14),
    Sketcher.Constraint("Horizontal", 15),
    Sketcher.Constraint("Symmetric", 5, 2, 8, 2, -2),
    Sketcher.Constraint("Symmetric", 7, 2, 10, 2, -2),
    Sketcher.Constraint("Symmetric", 0, 2, 12, 2, -2),
    Sketcher.Constraint("Symmetric", 2, 2, 14, 2, -2),
    Sketcher.Constraint("Vertical", 1, 2, 4, 2),
    Sketcher.Constraint("Vertical", 3, 2, 5, 2),
    Sketcher.Constraint("Equal", 15, 4),
    Sketcher.Constraint("DistanceX", 0, 2, 0, 1, Q("6 mm")),
    Sketcher.Constraint("DistanceY", 1, 2, 1, 1, Q("6.7 mm")),
    Sketcher.Constraint("DistanceX", 0, 2, -1, 1, Q("51 mm")),
    Sketcher.Constraint("DistanceY", -1, 1, 1, 2, Q("35 mm")),
    Sketcher.Constraint("DistanceY", 4, 2, -1, 1, Q("17.5 mm")),
])
pad6 = doc.addObject("PartDesign::Pad", "Pad005")
body.addObject(pad6)
pad6.Profile = sketch16
pad6.Length = 5.5
pad6.Reversed = True

# Sketch on XY plane
sketch17 = doc.addObject("Sketcher::SketchObject", "Sketch016")
body.addObject(sketch17)
sketch17.AttachmentSupport = (doc.XY_Plane, [""])
sketch17.MapMode = "FlatFace"
sketch17.AttachmentOffset = App.Placement(V(0, 0, 1.5), App.Rotation())
sketch17.addGeometry([
    Part.Circle(V(48, -14.5, 0), V(0, 0, 1), 1.65),
    Part.Circle(V(-48, -14.5, 0), V(0, 0, 1), 1.65),
    Part.Circle(V(-48, 38, 0), V(0, 0, 1), 1.65),
    Part.Circle(V(48, 38, 0), V(0, 0, 1), 1.65),
], False)
sketch17.addConstraint([
    Sketcher.Constraint("Equal", 0, 1),
    Sketcher.Constraint("Equal", 1, 2),
    Sketcher.Constraint("Equal", 2, 3),
    Sketcher.Constraint("Symmetric", 0, 3, 1, 3, -2),
    Sketcher.Constraint("Symmetric", 2, 3, 3, 3, -2),
    Sketcher.Constraint("Vertical", 1, 3, 2, 3),
    Sketcher.Constraint("Diameter", 0, Q("3.3 mm")),
    Sketcher.Constraint("DistanceX", -1, 1, 0, 3, Q("48 mm")),
    Sketcher.Constraint("DistanceY", -1, 1, 2, 3, Q("38 mm")),
    Sketcher.Constraint("DistanceY", 0, 3, -1, 1, Q("14.5 mm")),
])
pocket11 = doc.addObject("PartDesign::Pocket", "Pocket010")
body.addObject(pocket11)
pocket11.Profile = sketch17
pocket11.Type = "ThroughAll"
pocket11.Reversed = True

# Sketch on XY plane
sketch18 = doc.addObject("Sketcher::SketchObject", "Sketch017")
body.addObject(sketch18)
sketch18.AttachmentSupport = (doc.XY_Plane, [""])
sketch18.MapMode = "FlatFace"
sketch18.AttachmentOffset = App.Placement(V(0, 0, 1.5), App.Rotation())
sketch18.addGeometry([
    Part.Circle(V(-45, 47, 0), V(0, 0, 1), 1.1),
    Part.Circle(V(45, 47, 0), V(0, 0, 1), 1.1),
], False)
sketch18.addConstraint([
    Sketcher.Constraint("Equal", 0, 1),
    Sketcher.Constraint("Symmetric", 0, 3, 1, 3, -2),
    Sketcher.Constraint("Diameter", 0, Q("2.2 mm")),
    Sketcher.Constraint("DistanceX", 0, 3, -1, 1, Q("45 mm")),
    Sketcher.Constraint("DistanceY", -1, 1, 0, 3, Q("47 mm")),
])
pocket12 = doc.addObject("PartDesign::Pocket", "Pocket011")
body.addObject(pocket12)
pocket12.Profile = sketch18
pocket12.Type = "ThroughAll"
pocket12.Midplane = True
doc.recompute()

chamfer4 = doc.addObject("PartDesign::Chamfer", "Chamfer003")
body.addObject(chamfer4)
chamfer4.Base = (pocket12, edges_at(pocket12, [(-46.1, 47, 0), (43.9, 47, 0)]))
chamfer4.Size = 1.3

doc.recompute()
